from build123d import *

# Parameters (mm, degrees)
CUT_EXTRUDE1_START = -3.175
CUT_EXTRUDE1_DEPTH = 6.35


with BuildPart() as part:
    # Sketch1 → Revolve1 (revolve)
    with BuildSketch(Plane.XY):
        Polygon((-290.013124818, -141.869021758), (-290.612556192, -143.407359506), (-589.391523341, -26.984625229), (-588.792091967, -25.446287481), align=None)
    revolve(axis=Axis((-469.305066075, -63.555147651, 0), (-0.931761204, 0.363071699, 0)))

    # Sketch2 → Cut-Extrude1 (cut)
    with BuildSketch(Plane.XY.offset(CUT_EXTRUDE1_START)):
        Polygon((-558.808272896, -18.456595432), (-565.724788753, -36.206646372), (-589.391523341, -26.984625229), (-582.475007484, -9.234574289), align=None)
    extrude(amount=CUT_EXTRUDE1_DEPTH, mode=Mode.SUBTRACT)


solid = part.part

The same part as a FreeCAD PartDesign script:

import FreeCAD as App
import Part
import Sketcher

V = App.Vector
Q = App.Units.Quantity

doc = App.newDocument("Part")
body = doc.addObject("PartDesign::Body", "Body")

sketch1 = doc.addObject("Sketcher::SketchObject", "Sketch")
body.addObject(sketch1)
sketch1.AttachmentSupport = (doc.XY_Plane, [""])
sketch1.MapMode = "FlatFace"
sketch1.addGeometry([
    Part.LineSegment(V(-290.6, -143.4, 0), V(-290, -141.9, 0)),
    Part.LineSegment(V(-290, -141.9, 0), V(-588.8, -25.4, 0)),
    Part.LineSegment(V(-588.8, -25.4, 0), V(-589.4, -27, 0)),
    Part.LineSegment(V(-589.4, -27, 0), V(-290.6, -143.4, 0)),
], False)
sketch1.addGeometry(Part.LineSegment(V(-287.2, -134.5, 0), V(-585.9, -18.1, 0)), True)
sketch1.addConstraint([
    Sketcher.Constraint("Coincident", 0, 2, 1, 1),
    Sketcher.Constraint("Coincident", 1, 2, 2, 1),
    Sketcher.Constraint("Coincident", 2, 2, 3, 1),
    Sketcher.Constraint("Coincident", 3, 2, 0, 1),
    Sketcher.Constraint("Perpendicular", 0, 1),
    Sketcher.Constraint("Perpendicular", 1, 2),
    Sketcher.Constraint("Perpendicular", 2, 3),
    Sketcher.Constraint("Parallel", 3, 4),
    Sketcher.Constraint("Equal", 3, 4),
    Sketcher.Constraint("Distance", 0, Q("0.065 in")),
    Sketcher.Constraint("DistanceX", 4, 1, -1, 1, Q("287.154298 mm")),
    Sketcher.Constraint("DistanceY", 4, 2, -1, 1, Q("18.1096 mm")),
    Sketcher.Constraint("DistanceX", 2, 2, 0, 2, Q("299.378399 mm")),
    Sketcher.Constraint("Distance", 1, Q("320.66045 mm")),
    Sketcher.Constraint("DistanceY", 0, 2, -1, 1, Q("141.869022 mm")),
    Sketcher.Constraint("DistanceX", 1, 2, -1, 1, Q("588.792092 mm")),
])
revolution = doc.addObject("PartDesign::Revolution", "Revolution")
body.addObject(revolution)
revolution.Profile = sketch1
revolution.ReferenceAxis = (sketch1, ["Axis0"])
revolution.Angle = 360

sketch2 = doc.addObject("Sketcher::SketchObject", "Sketch001")
body.addObject(sketch2)
sketch2.AttachmentSupport = (doc.XY_Plane, [""])
sketch2.MapMode = "FlatFace"
sketch2.AttachmentOffset = App.Placement(V(0, 0, -0.125 * 25.4), App.Rotation())
sketch2.addGeometry([
    Part.LineSegment(V(-566, -36, 0), V(-559, -18, 0)),
    Part.LineSegment(V(-559, -18, 0), V(-582, -9, 0)),
    Part.LineSegment(V(-582, -9, 0), V(-589, -27, 0)),
    Part.LineSegment(V(-589, -27, 0), V(-566, -36, 0)),
], False)
sketch2.addConstraint([
    Sketcher.Constraint("Coincident", 0, 2, 1, 1),
    Sketcher.Constraint("Coincident", 1, 2, 2, 1),
    Sketcher.Constraint("Coincident", 2, 2, 3, 1),
    Sketcher.Constraint("Coincident", 3, 2, 0, 1),
    Sketcher.Constraint("Perpendicular", 0, 1),
    Sketcher.Constraint("Perpendicular", 1, 2),
    Sketcher.Constraint("Perpendicular", 2, 3),
    Sketcher.Constraint("Distance", 1, Q("1 in")),
    Sketcher.Constraint("Distance", 0, Q("0.75 in")),
    Sketcher.Constraint("DistanceX", 3, 2, -1, 1, Q("565.724789 mm")),
    Sketcher.Constraint("DistanceY", 0, 2, 1, 2, Q("9.222021 mm")),
    Sketcher.Constraint("DistanceY", 0, 2, -1, 1, Q("18.456595 mm")),
])
pocket1 = doc.addObject("PartDesign::Pocket", "Pocket")
body.addObject(pocket1)
pocket1.Profile = sketch2
pocket1.Length = Q("0.25 in")
pocket1.Reversed = True

doc.recompute()
